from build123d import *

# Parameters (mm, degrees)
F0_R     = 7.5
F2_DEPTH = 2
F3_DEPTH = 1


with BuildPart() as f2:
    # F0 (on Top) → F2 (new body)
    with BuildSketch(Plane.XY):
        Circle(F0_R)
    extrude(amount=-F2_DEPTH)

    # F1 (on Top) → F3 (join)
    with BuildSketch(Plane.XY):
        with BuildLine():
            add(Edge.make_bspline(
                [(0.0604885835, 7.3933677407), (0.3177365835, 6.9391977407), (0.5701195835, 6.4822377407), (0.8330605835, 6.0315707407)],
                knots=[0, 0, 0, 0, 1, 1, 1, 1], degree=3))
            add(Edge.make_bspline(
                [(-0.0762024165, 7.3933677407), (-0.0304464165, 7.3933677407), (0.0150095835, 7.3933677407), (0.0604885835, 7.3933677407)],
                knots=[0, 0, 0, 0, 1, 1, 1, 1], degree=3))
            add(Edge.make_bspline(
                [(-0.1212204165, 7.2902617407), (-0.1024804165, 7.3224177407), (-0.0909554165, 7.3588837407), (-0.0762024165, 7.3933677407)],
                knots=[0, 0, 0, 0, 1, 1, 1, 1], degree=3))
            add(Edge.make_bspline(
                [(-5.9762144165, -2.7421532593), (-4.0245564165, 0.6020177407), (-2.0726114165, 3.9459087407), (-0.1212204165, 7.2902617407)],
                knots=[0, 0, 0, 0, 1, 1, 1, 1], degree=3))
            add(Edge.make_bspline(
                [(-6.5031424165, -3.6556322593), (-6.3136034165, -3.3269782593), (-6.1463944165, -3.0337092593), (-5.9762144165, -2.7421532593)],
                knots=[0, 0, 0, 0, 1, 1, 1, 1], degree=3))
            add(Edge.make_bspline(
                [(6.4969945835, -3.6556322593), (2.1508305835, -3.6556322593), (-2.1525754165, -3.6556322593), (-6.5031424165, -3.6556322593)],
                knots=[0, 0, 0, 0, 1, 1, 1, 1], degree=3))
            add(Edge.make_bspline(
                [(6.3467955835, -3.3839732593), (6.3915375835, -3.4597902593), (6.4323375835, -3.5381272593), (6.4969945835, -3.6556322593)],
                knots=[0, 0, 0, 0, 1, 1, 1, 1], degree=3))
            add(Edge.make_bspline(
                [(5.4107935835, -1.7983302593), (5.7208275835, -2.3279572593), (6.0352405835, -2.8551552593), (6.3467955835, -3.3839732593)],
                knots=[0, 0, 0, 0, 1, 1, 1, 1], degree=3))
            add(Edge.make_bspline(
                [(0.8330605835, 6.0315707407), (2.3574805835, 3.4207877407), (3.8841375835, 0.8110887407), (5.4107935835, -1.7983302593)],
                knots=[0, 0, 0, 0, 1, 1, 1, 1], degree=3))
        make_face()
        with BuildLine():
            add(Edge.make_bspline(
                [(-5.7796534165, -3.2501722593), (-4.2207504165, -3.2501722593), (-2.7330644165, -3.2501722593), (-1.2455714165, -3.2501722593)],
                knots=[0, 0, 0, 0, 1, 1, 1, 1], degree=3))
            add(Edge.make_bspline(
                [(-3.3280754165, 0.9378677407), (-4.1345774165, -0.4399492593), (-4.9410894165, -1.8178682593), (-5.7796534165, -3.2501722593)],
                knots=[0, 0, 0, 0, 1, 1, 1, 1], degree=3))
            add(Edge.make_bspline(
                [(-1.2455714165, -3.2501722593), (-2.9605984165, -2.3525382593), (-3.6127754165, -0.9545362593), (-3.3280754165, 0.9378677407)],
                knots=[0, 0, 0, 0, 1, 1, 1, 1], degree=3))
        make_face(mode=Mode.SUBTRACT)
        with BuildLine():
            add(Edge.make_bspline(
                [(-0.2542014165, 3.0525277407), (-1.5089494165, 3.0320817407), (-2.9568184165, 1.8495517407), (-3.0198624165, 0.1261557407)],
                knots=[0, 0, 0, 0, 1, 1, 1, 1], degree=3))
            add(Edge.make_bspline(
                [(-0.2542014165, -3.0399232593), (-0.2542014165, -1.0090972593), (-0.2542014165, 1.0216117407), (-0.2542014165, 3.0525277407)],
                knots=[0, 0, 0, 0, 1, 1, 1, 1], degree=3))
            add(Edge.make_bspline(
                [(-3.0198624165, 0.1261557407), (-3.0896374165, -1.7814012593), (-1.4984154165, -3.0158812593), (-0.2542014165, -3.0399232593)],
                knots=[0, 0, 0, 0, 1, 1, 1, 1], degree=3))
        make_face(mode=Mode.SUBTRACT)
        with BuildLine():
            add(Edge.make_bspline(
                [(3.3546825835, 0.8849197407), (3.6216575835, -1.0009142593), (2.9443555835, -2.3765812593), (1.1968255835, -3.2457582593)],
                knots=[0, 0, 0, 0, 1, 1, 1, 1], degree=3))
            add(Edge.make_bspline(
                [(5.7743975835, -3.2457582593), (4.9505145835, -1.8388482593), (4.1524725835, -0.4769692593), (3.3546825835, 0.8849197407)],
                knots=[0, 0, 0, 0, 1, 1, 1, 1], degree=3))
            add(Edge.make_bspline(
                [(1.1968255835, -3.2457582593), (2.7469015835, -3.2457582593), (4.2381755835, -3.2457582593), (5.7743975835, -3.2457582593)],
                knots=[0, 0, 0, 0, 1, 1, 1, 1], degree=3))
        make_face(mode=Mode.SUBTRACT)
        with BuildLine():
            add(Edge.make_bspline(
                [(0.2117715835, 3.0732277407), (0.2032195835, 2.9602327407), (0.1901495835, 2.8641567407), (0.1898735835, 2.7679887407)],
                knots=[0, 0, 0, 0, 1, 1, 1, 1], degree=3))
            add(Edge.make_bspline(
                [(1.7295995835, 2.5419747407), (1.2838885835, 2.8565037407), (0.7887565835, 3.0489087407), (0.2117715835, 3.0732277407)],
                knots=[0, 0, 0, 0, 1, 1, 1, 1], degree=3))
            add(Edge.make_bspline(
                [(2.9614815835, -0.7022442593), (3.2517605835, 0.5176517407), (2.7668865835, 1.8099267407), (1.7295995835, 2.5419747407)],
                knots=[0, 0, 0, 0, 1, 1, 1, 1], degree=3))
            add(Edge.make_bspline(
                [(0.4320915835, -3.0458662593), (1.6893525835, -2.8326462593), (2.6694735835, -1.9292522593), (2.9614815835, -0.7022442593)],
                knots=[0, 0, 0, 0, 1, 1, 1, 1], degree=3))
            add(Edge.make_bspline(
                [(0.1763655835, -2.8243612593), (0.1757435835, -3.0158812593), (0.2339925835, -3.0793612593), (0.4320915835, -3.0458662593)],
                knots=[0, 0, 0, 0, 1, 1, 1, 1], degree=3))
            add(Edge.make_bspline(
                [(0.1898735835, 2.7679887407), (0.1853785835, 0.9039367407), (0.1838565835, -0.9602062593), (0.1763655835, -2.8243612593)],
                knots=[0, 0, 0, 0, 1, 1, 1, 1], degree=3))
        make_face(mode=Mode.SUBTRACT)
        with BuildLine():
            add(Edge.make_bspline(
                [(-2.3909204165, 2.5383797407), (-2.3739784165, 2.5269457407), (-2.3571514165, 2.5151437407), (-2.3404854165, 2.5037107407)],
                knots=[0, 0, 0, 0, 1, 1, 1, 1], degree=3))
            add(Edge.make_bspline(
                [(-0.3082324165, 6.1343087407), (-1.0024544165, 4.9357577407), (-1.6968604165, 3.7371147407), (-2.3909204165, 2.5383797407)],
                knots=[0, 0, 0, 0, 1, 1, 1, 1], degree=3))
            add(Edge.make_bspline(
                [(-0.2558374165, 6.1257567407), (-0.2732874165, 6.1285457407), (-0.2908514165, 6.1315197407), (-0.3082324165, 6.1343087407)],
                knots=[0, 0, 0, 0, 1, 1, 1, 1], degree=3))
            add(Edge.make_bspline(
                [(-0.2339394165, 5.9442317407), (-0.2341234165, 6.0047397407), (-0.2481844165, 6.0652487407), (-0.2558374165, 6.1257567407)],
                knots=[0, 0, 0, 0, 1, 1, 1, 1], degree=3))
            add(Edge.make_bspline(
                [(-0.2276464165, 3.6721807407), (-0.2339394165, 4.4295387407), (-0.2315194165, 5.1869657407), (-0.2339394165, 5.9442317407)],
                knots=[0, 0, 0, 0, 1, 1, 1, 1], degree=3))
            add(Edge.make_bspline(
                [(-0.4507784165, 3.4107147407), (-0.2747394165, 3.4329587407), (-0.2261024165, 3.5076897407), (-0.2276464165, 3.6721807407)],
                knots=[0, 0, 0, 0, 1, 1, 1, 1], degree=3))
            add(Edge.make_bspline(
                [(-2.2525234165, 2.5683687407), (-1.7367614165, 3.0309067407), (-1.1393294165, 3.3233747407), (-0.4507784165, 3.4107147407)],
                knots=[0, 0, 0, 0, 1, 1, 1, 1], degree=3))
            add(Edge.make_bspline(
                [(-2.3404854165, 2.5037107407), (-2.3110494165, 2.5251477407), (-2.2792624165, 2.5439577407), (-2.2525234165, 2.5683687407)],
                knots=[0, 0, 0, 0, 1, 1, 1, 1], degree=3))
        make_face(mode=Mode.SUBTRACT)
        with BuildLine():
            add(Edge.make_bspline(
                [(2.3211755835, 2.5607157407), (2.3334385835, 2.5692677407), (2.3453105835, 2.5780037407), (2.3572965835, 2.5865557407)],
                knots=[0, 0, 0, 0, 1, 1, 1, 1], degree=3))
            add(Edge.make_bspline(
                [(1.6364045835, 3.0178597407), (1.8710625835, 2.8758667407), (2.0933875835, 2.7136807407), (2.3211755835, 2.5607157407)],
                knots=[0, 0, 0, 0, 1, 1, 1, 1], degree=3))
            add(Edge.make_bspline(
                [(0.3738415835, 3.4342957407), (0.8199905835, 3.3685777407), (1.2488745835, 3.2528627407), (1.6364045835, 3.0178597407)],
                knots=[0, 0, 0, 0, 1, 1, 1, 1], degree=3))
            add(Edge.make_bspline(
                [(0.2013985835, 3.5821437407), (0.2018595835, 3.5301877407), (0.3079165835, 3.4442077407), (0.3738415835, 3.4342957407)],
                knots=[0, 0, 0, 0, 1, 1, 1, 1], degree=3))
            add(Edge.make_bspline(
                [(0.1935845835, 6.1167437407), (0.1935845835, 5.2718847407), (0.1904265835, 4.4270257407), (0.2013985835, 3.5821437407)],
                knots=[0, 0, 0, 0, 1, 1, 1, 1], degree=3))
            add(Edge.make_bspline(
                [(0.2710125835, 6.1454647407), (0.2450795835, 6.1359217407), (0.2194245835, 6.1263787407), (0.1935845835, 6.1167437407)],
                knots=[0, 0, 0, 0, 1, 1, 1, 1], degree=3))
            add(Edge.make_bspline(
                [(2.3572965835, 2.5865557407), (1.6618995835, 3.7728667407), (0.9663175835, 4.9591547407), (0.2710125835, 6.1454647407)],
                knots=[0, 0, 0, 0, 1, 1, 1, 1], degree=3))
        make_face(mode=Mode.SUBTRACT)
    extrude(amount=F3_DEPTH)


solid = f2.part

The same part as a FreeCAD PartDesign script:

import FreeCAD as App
import Part
import Sketcher
from FreeCAD import Vector

doc = App.newDocument("Part")
params = doc.addObject("Spreadsheet::Sheet", "Params")
for row, (alias, value) in enumerate([
    ("sketch1_diameter", "15 mm"),
    ("pad1_length", "2 mm"),
    ("pad2_length", "1 mm"),
], start=1):
    params.set(f"A{row}", alias)
    params.set(f"B{row}", "=" + value)
    params.setAlias(f"B{row}", alias)

body = doc.addObject("PartDesign::Body", "Body")

# Sketch on XY plane
sketch1 = body.newObject("Sketcher::SketchObject", "Sketch")
sketch1.AttachmentSupport = (doc.getObject("XY_Plane"), [""])
sketch1.MapMode = "FlatFace"
sketch1.addGeometry(Part.Circle(Vector(0, 0, 0), Vector(0, 0, 1), 7.5), False)
sketch1.addConstraint(Sketcher.Constraint("Coincident", 0, 3, -1, 1))
sketch1.addConstraint(Sketcher.Constraint("Diameter", 0, 15.0))
sketch1.setExpression("Constraints[1]", "Params.sketch1_diameter")
pad1 = body.newObject("PartDesign::Pad", "Pad")
pad1.Profile = sketch1
pad1.setExpression("Length", "Params.pad1_length")
pad1.Reversed = True

# Sketch on XY plane
sketch2 = body.newObject("Sketcher::SketchObject", "Sketch001")
sketch2.AttachmentSupport = (doc.getObject("XY_Plane"), [""])
sketch2.MapMode = "FlatFace"
sketch2.addGeometry(Part.BSplineCurve([Vector(0.060489, 7.393368, 0), Vector(0.317737, 6.939198, 0), Vector(0.57012, 6.482238, 0), Vector(0.833061, 6.031571, 0)], [4, 4], [0, 1], False, 3, [1, 1, 1, 1], False), False)
sketch2.addGeometry(Part.BSplineCurve([Vector(-0.076202, 7.393368, 0), Vector(-0.030446, 7.393368, 0), Vector(0.01501, 7.393368, 0), Vector(0.060489, 7.393368, 0)], [4, 4], [0, 1], False, 3, [1, 1, 1, 1], False), False)
sketch2.addGeometry(Part.BSplineCurve([Vector(-0.12122, 7.290262, 0), Vector(-0.10248, 7.322418, 0), Vector(-0.090955, 7.358884, 0), Vector(-0.076202, 7.393368, 0)], [4, 4], [0, 1], False, 3, [1, 1, 1, 1], False), False)
sketch2.addGeometry(Part.BSplineCurve([Vector(-5.976214, -2.742153, 0), Vector(-4.024556, 0.602018, 0), Vector(-2.072611, 3.945909, 0), Vector(-0.12122, 7.290262, 0)], [4, 4], [0, 1], False, 3, [1, 1, 1, 1], False), False)
sketch2.addGeometry(Part.BSplineCurve([Vector(-6.503142, -3.655632, 0), Vector(-6.313603, -3.326978, 0), Vector(-6.146394, -3.033709, 0), Vector(-5.976214, -2.742153, 0)], [4, 4], [0, 1], False, 3, [1, 1, 1, 1], False), False)
sketch2.addGeometry(Part.BSplineCurve([Vector(6.496995, -3.655632, 0), Vector(2.150831, -3.655632, 0), Vector(-2.152575, -3.655632, 0), Vector(-6.503142, -3.655632, 0)], [4, 4], [0, 1], False, 3, [1, 1, 1, 1], False), False)
sketch2.addGeometry(Part.BSplineCurve([Vector(6.346796, -3.383973, 0), Vector(6.391538, -3.45979, 0), Vector(6.432338, -3.538127, 0), Vector(6.496995, -3.655632, 0)], [4, 4], [0, 1], False, 3, [1, 1, 1, 1], False), False)
sketch2.addGeometry(Part.BSplineCurve([Vector(5.410794, -1.79833, 0), Vector(5.720828, -2.327957, 0), Vector(6.035241, -2.855155, 0), Vector(6.346796, -3.383973, 0)], [4, 4], [0, 1], False, 3, [1, 1, 1, 1], False), False)
sketch2.addGeometry(Part.BSplineCurve([Vector(0.833061, 6.031571, 0), Vector(2.357481, 3.420788, 0), Vector(3.884138, 0.811089, 0), Vector(5.410794, -1.79833, 0)], [4, 4], [0, 1], False, 3, [1, 1, 1, 1], False), False)
sketch2.addGeometry(Part.BSplineCurve([Vector(5.774398, -3.245758, 0), Vector(4.950515, -1.838848, 0), Vector(4.152473, -0.476969, 0), Vector(3.354683, 0.88492, 0)], [4, 4], [0, 1], False, 3, [1, 1, 1, 1], False), False)
sketch2.addGeometry(Part.BSplineCurve([Vector(1.196826, -3.245758, 0), Vector(2.746902, -3.245758, 0), Vector(4.238176, -3.245758, 0), Vector(5.774398, -3.245758, 0)], [4, 4], [0, 1], False, 3, [1, 1, 1, 1], False), False)
sketch2.addGeometry(Part.BSplineCurve([Vector(3.354683, 0.88492, 0), Vector(3.621658, -1.000914, 0), Vector(2.944356, -2.376581, 0), Vector(1.196826, -3.245758, 0)], [4, 4], [0, 1], False, 3, [1, 1, 1, 1], False), False)
sketch2.addGeometry(Part.BSplineCurve([Vector(1.7296, 2.541975, 0), Vector(1.283889, 2.856504, 0), Vector(0.788757, 3.048909, 0), Vector(0.211772, 3.073228, 0)], [4, 4], [0, 1], False, 3, [1, 1, 1, 1], False), False)
sketch2.addGeometry(Part.BSplineCurve([Vector(2.961482, -0.702244, 0), Vector(3.251761, 0.517652, 0), Vector(2.766887, 1.809927, 0), Vector(1.7296, 2.541975, 0)], [4, 4], [0, 1], False, 3, [1, 1, 1, 1], False), False)
sketch2.addGeometry(Part.BSplineCurve([Vector(0.432092, -3.045866, 0), Vector(1.689353, -2.832646, 0), Vector(2.669474, -1.929252, 0), Vector(2.961482, -0.702244, 0)], [4, 4], [0, 1], False, 3, [1, 1, 1, 1], False), False)
sketch2.addGeometry(Part.BSplineCurve([Vector(0.176366, -2.824361, 0), Vector(0.175744, -3.015881, 0), Vector(0.233993, -3.079361, 0), Vector(0.432092, -3.045866, 0)], [4, 4], [0, 1], False, 3, [1, 1, 1, 1], False), False)
sketch2.addGeometry(Part.BSplineCurve([Vector(0.189874, 2.767989, 0), Vector(0.185379, 0.903937, 0), Vector(0.183857, -0.960206, 0), Vector(0.176366, -2.824361, 0)], [4, 4], [0, 1], False, 3, [1, 1, 1, 1], False), False)
sketch2.addGeometry(Part.BSplineCurve([Vector(0.211772, 3.073228, 0), Vector(0.20322, 2.960233, 0), Vector(0.19015, 2.864157, 0), Vector(0.189874, 2.767989, 0)], [4, 4], [0, 1], False, 3, [1, 1, 1, 1], False), False)
sketch2.addGeometry(Part.BSplineCurve([Vector(-3.328075, 0.937868, 0), Vector(-4.134577, -0.439949, 0), Vector(-4.941089, -1.817868, 0), Vector(-5.779653, -3.250172, 0)], [4, 4], [0, 1], False, 3, [1, 1, 1, 1], False), False)
sketch2.addGeometry(Part.BSplineCurve([Vector(-1.245571, -3.250172, 0), Vector(-2.960598, -2.352538, 0), Vector(-3.612775, -0.954536, 0), Vector(-3.328075, 0.937868, 0)], [4, 4], [0, 1], False, 3, [1, 1, 1, 1], False), False)
sketch2.addGeometry(Part.BSplineCurve([Vector(-5.779653, -3.250172, 0), Vector(-4.22075, -3.250172, 0), Vector(-2.733064, -3.250172, 0), Vector(-1.245571, -3.250172, 0)], [4, 4], [0, 1], False, 3, [1, 1, 1, 1], False), False)
sketch2.addGeometry(Part.BSplineCurve([Vector(-0.254201, -3.039923, 0), Vector(-0.254201, -1.009097, 0), Vector(-0.254201, 1.021612, 0), Vector(-0.254201, 3.052528, 0)], [4, 4], [0, 1], False, 3, [1, 1, 1, 1], False), False)
sketch2.addGeometry(Part.BSplineCurve([Vector(-3.019862, 0.126156, 0), Vector(-3.089637, -1.781401, 0), Vector(-1.498415, -3.015881, 0), Vector(-0.254201, -3.039923, 0)], [4, 4], [0, 1], False, 3, [1, 1, 1, 1], False), False)
sketch2.addGeometry(Part.BSplineCurve([Vector(-0.254201, 3.052528, 0), Vector(-1.508949, 3.032082, 0), Vector(-2.956818, 1.849552, 0), Vector(-3.019862, 0.126156, 0)], [4, 4], [0, 1], False, 3, [1, 1, 1, 1], False), False)
sketch2.addGeometry(Part.BSplineCurve([Vector(1.636405, 3.01786, 0), Vector(1.871063, 2.875867, 0), Vector(2.093388, 2.713681, 0), Vector(2.321176, 2.560716, 0)], [4, 4], [0, 1], False, 3, [1, 1, 1, 1], False), False)
sketch2.addGeometry(Part.BSplineCurve([Vector(0.373842, 3.434296, 0), Vector(0.819991, 3.368578, 0), Vector(1.248875, 3.252863, 0), Vector(1.636405, 3.01786, 0)], [4, 4], [0, 1], False, 3, [1, 1, 1, 1], False), False)
sketch2.addGeometry(Part.BSplineCurve([Vector(0.201399, 3.582144, 0), Vector(0.20186, 3.530188, 0), Vector(0.307917, 3.444208, 0), Vector(0.373842, 3.434296, 0)], [4, 4], [0, 1], False, 3, [1, 1, 1, 1], False), False)
sketch2.addGeometry(Part.BSplineCurve([Vector(0.193585, 6.116744, 0), Vector(0.193585, 5.271885, 0), Vector(0.190427, 4.427026, 0), Vector(0.201399, 3.582144, 0)], [4, 4], [0, 1], False, 3, [1, 1, 1, 1], False), False)
sketch2.addGeometry(Part.BSplineCurve([Vector(0.271013, 6.145465, 0), Vector(0.24508, 6.135922, 0), Vector(0.219425, 6.126379, 0), Vector(0.193585, 6.116744, 0)], [4, 4], [0, 1], False, 3, [1, 1, 1, 1], False), False)
sketch2.addGeometry(Part.BSplineCurve([Vector(2.357297, 2.586556, 0), Vector(1.6619, 3.772867, 0), Vector(0.966318, 4.959155, 0), Vector(0.271013, 6.145465, 0)], [4, 4], [0, 1], False, 3, [1, 1, 1, 1], False), False)
sketch2.addGeometry(Part.BSplineCurve([Vector(2.321176, 2.560716, 0), Vector(2.333439, 2.569268, 0), Vector(2.345311, 2.578004, 0), Vector(2.357297, 2.586556, 0)], [4, 4], [0, 1], False, 3, [1, 1, 1, 1], False), False)
sketch2.addGeometry(Part.BSplineCurve([Vector(-0.308232, 6.134309, 0), Vector(-1.002454, 4.935758, 0), Vector(-1.69686, 3.737115, 0), Vector(-2.39092, 2.53838, 0)], [4, 4], [0, 1], False, 3, [1, 1, 1, 1], False), False)
sketch2.addGeometry(Part.BSplineCurve([Vector(-0.255837, 6.125757, 0), Vector(-0.273287, 6.128546, 0), Vector(-0.290851, 6.13152, 0), Vector(-0.308232, 6.134309, 0)], [4, 4], [0, 1], False, 3, [1, 1, 1, 1], False), False)
sketch2.addGeometry(Part.BSplineCurve([Vector(-0.233939, 5.944232, 0), Vector(-0.234123, 6.00474, 0), Vector(-0.248184, 6.065249, 0), Vector(-0.255837, 6.125757, 0)], [4, 4], [0, 1], False, 3, [1, 1, 1, 1], False), False)
sketch2.addGeometry(Part.BSplineCurve([Vector(-0.227646, 3.672181, 0), Vector(-0.233939, 4.429539, 0), Vector(-0.231519, 5.186966, 0), Vector(-0.233939, 5.944232, 0)], [4, 4], [0, 1], False, 3, [1, 1, 1, 1], False), False)
sketch2.addGeometry(Part.BSplineCurve([Vector(-0.450778, 3.410715, 0), Vector(-0.274739, 3.432959, 0), Vector(-0.226102, 3.50769, 0), Vector(-0.227646, 3.672181, 0)], [4, 4], [0, 1], False, 3, [1, 1, 1, 1], False), False)
sketch2.addGeometry(Part.BSplineCurve([Vector(-2.252523, 2.568369, 0), Vector(-1.736761, 3.030907, 0), Vector(-1.139329, 3.323375, 0), Vector(-0.450778, 3.410715, 0)], [4, 4], [0, 1], False, 3, [1, 1, 1, 1], False), False)
sketch2.addGeometry(Part.BSplineCurve([Vector(-2.340485, 2.503711, 0), Vector(-2.311049, 2.525148, 0), Vector(-2.279262, 2.543958, 0), Vector(-2.252523, 2.568369, 0)], [4, 4], [0, 1], False, 3, [1, 1, 1, 1], False), False)
sketch2.addGeometry(Part.BSplineCurve([Vector(-2.39092, 2.53838, 0), Vector(-2.373978, 2.526946, 0), Vector(-2.357151, 2.515144, 0), Vector(-2.340485, 2.503711, 0)], [4, 4], [0, 1], False, 3, [1, 1, 1, 1], False), False)
sketch2.addConstraint(Sketcher.Constraint("Block", 0))
sketch2.addConstraint(Sketcher.Constraint("Block", 1))
sketch2.addConstraint(Sketcher.Constraint("Block", 2))
sketch2.addConstraint(Sketcher.Constraint("Block", 3))
sketch2.addConstraint(Sketcher.Constraint("Block", 4))
sketch2.addConstraint(Sketcher.Constraint("Block", 5))
sketch2.addConstraint(Sketcher.Constraint("Block", 6))
sketch2.addConstraint(Sketcher.Constraint("Block", 7))
sketch2.addConstraint(Sketcher.Constraint("Block", 8))
sketch2.addConstraint(Sketcher.Constraint("Block", 9))
sketch2.addConstraint(Sketcher.Constraint("Block", 10))
sketch2.addConstraint(Sketcher.Constraint("Block", 11))
sketch2.addConstraint(Sketcher.Constraint("Block", 12))
sketch2.addConstraint(Sketcher.Constraint("Block", 13))
sketch2.addConstraint(Sketcher.Constraint("Block", 14))
sketch2.addConstraint(Sketcher.Constraint("Block", 15))
sketch2.addConstraint(Sketcher.Constraint("Block", 16))
sketch2.addConstraint(Sketcher.Constraint("Block", 17))
sketch2.addConstraint(Sketcher.Constraint("Block", 18))
sketch2.addConstraint(Sketcher.Constraint("Block", 19))
sketch2.addConstraint(Sketcher.Constraint("Block", 20))
sketch2.addConstraint(Sketcher.Constraint("Block", 21))
sketch2.addConstraint(Sketcher.Constraint("Block", 22))
sketch2.addConstraint(Sketcher.Constraint("Block", 23))
sketch2.addConstraint(Sketcher.Constraint("Block", 24))
sketch2.addConstraint(Sketcher.Constraint("Block", 25))
sketch2.addConstraint(Sketcher.Constraint("Block", 26))
sketch2.addConstraint(Sketcher.Constraint("Block", 27))
sketch2.addConstraint(Sketcher.Constraint("Block", 28))
sketch2.addConstraint(Sketcher.Constraint("Block", 29))
sketch2.addConstraint(Sketcher.Constraint("Block", 30))
sketch2.addConstraint(Sketcher.Constraint("Block", 31))
sketch2.addConstraint(Sketcher.Constraint("Block", 32))
sketch2.addConstraint(Sketcher.Constraint("Block", 33))
sketch2.addConstraint(Sketcher.Constraint("Block", 34))
sketch2.addConstraint(Sketcher.Constraint("Block", 35))
sketch2.addConstraint(Sketcher.Constraint("Block", 36))
sketch2.addConstraint(Sketcher.Constraint("Block", 37))
sketch2.addConstraint(Sketcher.Constraint("Block", 38))
pad2 = body.newObject("PartDesign::Pad", "Pad001")
pad2.Profile = sketch2
pad2.setExpression("Length", "Params.pad2_length")

doc.recompute()
